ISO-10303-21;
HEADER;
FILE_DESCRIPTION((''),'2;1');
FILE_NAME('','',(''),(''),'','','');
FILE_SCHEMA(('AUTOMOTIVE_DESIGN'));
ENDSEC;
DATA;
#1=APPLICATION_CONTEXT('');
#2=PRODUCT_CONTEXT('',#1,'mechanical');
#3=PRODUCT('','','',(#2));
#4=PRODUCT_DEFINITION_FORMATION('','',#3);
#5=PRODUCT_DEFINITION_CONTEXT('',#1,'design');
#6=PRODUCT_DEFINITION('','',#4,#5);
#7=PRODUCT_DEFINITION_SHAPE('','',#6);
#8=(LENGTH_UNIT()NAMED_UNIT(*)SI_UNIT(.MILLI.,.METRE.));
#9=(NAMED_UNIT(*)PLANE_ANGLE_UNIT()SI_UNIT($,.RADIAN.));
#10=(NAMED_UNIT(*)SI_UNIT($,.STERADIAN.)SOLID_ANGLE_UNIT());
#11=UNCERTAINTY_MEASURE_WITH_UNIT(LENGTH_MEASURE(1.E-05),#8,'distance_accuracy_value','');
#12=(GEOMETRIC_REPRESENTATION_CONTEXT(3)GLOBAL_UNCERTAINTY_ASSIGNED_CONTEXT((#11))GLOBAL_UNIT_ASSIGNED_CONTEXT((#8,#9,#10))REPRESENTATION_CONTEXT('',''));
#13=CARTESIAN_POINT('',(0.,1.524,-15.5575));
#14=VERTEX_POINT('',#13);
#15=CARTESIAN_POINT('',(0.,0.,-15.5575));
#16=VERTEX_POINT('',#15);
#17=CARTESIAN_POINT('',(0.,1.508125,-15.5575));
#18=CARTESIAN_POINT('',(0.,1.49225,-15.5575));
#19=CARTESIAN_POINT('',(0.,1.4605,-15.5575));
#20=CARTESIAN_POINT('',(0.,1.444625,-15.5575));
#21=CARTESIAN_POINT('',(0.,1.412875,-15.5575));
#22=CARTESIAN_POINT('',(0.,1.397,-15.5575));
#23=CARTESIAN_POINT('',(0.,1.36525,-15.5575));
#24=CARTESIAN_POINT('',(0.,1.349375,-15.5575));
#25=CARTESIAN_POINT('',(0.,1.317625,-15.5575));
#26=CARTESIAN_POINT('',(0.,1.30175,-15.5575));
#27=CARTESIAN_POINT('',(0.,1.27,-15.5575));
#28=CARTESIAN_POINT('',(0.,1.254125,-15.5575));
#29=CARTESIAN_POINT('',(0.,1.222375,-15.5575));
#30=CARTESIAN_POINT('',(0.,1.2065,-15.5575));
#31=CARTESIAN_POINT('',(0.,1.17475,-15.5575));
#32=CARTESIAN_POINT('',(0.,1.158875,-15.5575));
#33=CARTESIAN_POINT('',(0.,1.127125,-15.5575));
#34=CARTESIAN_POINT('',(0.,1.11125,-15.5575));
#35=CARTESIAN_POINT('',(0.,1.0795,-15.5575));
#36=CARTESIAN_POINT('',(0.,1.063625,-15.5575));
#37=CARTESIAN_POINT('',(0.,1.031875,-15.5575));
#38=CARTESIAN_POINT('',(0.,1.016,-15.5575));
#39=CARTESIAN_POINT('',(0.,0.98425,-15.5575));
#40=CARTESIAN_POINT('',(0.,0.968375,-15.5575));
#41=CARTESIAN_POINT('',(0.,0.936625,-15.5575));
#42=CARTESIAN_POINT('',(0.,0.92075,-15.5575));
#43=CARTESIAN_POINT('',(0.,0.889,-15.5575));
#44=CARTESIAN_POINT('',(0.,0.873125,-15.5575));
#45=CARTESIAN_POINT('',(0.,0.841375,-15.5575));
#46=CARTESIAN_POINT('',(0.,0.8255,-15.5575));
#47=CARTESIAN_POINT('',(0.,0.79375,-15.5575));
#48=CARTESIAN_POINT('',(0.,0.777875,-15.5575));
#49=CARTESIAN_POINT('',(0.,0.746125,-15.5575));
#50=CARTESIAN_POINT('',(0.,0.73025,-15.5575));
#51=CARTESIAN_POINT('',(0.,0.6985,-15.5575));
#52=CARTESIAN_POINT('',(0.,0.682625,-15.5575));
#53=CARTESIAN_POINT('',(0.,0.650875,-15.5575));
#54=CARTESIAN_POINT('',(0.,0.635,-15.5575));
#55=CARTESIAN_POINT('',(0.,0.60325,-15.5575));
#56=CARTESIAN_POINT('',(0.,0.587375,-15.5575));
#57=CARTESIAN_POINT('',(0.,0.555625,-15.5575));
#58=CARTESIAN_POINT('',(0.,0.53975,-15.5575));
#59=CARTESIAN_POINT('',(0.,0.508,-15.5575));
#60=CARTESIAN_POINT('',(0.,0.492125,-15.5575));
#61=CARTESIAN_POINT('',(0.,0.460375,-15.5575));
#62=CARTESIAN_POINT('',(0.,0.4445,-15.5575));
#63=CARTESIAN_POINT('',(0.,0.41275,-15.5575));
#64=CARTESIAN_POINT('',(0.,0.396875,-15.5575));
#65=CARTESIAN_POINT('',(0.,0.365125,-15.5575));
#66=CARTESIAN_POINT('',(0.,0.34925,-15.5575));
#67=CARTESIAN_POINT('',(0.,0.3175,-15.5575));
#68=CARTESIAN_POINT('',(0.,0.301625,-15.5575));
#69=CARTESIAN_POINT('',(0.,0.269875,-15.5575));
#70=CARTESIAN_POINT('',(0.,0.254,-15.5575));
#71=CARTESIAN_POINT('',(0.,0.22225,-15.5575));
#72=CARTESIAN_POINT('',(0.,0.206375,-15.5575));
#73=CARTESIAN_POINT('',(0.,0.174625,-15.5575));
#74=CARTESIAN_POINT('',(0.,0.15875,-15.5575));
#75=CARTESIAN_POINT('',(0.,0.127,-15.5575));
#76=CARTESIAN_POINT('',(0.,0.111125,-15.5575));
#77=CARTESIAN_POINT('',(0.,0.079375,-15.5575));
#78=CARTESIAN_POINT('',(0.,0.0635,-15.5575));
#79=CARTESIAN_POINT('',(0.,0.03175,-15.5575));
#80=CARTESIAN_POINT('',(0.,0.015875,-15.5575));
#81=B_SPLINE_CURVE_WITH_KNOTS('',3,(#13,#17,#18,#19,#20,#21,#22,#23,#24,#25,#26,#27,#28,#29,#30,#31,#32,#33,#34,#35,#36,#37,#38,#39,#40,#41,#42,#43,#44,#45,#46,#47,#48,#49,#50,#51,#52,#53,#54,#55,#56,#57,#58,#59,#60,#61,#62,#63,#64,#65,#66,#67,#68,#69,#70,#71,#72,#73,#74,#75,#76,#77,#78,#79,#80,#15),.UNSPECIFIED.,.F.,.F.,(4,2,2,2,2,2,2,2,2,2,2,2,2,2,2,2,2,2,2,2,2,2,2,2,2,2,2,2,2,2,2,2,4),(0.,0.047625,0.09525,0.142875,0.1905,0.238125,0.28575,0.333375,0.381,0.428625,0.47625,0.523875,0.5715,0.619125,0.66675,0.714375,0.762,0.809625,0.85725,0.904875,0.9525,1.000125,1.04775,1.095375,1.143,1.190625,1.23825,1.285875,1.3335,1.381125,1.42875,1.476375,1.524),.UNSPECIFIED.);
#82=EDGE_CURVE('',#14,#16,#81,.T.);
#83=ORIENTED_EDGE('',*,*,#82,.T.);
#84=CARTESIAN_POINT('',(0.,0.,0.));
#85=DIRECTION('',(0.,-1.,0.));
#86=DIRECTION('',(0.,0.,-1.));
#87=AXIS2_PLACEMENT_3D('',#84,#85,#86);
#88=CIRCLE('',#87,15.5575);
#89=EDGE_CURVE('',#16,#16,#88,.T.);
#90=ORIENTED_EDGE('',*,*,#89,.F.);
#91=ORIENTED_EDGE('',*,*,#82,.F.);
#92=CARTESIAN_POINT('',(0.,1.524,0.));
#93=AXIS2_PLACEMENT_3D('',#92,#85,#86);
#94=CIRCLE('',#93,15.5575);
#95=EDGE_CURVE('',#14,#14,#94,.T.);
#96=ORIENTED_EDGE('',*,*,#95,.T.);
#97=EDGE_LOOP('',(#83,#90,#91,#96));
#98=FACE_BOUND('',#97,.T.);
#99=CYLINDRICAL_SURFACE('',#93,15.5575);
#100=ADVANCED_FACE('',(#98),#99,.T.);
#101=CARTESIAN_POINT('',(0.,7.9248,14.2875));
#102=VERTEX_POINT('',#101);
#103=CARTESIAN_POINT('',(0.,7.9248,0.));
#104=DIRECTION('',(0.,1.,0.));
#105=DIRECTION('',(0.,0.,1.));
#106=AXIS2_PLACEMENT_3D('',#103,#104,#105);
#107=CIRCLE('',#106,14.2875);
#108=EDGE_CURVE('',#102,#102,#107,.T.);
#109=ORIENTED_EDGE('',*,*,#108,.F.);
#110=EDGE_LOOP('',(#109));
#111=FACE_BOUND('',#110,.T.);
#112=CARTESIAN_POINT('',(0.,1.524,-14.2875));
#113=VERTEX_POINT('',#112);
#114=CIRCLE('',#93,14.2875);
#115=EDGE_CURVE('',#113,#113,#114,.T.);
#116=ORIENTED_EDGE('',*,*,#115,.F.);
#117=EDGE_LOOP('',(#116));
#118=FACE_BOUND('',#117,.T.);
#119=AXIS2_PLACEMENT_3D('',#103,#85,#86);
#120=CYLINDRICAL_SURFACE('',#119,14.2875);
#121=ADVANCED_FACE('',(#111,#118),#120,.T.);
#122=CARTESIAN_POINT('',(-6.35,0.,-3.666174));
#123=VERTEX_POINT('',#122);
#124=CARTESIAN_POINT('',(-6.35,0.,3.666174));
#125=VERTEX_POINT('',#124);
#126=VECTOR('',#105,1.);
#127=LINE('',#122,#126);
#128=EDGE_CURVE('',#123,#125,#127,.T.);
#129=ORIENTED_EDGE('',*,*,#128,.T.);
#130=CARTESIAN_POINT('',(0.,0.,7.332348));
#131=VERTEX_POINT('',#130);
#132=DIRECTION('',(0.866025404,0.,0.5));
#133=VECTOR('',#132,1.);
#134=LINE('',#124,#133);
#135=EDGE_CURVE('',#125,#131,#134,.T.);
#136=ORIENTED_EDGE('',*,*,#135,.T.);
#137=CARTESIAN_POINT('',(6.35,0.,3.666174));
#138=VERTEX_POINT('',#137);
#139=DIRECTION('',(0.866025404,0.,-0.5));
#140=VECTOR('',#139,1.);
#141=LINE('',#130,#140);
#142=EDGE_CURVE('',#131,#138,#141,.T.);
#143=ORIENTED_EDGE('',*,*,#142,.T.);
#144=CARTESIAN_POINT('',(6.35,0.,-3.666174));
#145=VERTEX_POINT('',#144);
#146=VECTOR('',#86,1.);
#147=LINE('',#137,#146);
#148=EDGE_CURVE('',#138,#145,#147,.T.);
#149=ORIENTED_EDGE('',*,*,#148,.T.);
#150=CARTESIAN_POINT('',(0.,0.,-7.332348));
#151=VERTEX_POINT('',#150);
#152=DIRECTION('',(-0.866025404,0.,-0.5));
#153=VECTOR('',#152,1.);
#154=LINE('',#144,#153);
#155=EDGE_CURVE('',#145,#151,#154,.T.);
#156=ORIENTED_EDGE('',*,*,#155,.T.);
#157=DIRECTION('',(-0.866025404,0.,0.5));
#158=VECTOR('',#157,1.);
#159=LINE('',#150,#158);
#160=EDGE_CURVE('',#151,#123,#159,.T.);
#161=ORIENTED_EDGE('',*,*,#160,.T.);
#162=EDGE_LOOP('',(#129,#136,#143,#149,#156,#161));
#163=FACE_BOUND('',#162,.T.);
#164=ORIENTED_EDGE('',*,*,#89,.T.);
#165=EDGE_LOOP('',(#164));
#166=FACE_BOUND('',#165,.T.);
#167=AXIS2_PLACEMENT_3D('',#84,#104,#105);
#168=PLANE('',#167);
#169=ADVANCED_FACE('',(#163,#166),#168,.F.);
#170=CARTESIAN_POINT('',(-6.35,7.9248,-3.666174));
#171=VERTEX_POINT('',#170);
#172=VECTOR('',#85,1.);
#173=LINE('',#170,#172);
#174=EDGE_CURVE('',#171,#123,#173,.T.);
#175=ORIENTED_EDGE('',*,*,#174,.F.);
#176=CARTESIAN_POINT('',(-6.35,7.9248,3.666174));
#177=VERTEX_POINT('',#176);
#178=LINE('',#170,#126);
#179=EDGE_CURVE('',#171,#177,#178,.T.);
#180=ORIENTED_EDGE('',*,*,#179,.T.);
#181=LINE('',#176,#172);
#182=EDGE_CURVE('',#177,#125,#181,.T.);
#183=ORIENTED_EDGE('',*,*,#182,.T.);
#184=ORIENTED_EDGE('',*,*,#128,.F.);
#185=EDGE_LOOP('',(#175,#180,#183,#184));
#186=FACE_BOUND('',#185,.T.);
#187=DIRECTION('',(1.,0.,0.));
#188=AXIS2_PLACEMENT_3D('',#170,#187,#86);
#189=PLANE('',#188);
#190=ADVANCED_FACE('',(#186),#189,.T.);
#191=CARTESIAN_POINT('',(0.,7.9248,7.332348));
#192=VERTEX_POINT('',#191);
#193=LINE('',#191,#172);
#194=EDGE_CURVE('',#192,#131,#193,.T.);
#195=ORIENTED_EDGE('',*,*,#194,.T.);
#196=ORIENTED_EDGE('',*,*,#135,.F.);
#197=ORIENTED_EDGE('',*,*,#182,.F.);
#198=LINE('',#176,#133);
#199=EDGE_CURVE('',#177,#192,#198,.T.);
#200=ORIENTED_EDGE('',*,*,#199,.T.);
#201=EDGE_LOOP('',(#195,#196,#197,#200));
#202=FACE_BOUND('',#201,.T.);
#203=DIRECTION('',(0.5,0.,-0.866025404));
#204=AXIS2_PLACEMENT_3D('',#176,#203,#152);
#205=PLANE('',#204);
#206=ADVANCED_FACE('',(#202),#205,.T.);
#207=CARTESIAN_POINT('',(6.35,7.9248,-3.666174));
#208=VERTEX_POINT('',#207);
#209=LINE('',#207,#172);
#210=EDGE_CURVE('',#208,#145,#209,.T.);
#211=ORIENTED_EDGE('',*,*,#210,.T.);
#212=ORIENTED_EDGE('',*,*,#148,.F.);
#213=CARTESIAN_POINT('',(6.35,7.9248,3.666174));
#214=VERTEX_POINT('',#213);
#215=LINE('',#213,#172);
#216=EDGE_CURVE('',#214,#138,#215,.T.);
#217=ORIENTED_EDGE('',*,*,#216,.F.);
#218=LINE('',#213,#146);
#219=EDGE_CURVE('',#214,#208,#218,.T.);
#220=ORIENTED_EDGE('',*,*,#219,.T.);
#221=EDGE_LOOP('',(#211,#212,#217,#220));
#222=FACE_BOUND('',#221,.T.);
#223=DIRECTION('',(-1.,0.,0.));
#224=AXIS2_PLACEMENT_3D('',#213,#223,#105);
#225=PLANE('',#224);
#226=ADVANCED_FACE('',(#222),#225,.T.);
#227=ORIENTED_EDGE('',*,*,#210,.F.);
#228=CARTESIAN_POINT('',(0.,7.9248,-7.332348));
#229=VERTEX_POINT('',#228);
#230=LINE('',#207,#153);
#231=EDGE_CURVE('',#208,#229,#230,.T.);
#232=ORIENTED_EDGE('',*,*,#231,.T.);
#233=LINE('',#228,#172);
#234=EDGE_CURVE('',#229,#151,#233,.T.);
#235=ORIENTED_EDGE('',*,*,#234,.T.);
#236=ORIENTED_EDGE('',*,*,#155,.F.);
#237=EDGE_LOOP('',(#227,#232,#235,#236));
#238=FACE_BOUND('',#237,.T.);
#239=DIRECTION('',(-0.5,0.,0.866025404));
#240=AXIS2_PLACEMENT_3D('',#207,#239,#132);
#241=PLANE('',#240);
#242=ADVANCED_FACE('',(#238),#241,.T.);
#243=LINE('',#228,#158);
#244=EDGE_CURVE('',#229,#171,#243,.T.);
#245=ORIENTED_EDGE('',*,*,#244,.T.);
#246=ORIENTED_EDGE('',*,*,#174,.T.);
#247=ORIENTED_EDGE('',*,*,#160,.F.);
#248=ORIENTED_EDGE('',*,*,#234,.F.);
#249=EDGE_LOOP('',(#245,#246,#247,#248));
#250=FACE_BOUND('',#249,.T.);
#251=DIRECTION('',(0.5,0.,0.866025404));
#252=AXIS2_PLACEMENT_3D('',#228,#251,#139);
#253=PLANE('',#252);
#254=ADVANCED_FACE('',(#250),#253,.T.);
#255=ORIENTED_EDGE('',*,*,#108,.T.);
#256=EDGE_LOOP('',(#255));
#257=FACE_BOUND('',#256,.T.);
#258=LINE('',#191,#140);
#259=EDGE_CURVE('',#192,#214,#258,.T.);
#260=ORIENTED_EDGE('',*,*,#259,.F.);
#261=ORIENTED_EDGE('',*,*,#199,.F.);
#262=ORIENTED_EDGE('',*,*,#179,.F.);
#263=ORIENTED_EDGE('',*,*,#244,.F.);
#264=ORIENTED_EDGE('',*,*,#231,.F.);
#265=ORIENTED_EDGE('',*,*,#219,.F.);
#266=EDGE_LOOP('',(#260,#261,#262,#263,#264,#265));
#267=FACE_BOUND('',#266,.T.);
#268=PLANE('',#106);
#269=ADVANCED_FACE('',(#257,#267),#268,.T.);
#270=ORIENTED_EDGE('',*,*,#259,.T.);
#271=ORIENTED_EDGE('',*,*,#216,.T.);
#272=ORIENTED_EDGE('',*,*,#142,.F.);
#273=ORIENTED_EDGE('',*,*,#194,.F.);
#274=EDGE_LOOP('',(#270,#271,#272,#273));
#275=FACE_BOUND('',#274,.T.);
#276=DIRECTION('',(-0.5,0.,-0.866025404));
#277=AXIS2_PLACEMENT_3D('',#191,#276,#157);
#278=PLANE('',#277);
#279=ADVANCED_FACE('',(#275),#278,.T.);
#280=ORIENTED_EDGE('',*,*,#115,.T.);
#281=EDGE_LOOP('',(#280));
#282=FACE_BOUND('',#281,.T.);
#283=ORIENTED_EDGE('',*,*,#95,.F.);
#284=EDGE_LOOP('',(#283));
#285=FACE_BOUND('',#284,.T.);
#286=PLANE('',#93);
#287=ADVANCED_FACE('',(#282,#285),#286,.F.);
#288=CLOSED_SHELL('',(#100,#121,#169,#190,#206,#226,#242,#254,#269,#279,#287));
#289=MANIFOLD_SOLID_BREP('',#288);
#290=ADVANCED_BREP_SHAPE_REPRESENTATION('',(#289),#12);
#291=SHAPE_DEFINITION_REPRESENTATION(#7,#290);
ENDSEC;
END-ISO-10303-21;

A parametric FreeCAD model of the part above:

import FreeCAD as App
import Part
import Sketcher
from FreeCAD import Vector
Q = App.Units.Quantity

doc = App.newDocument("Part")
params = doc.addObject("Spreadsheet::Sheet", "Params")
for row, (alias, value) in enumerate([
    ("sketch1_diameter", "1.125 in"),
    ("pad1_length", "0.312 in"),
    ("sketch2_diameter", "1.225 in"),
    ("sketch2_diameter2", "1.125 in"),
    ("pad2_length", "0.06 in"),
], start=1):
    params.set(f"A{row}", alias)
    params.set(f"B{row}", "=" + value)
    params.setAlias(f"B{row}", alias)

body = doc.addObject("PartDesign::Body", "Body")

sketch1 = body.newObject("Sketcher::SketchObject", "Sketch")
sketch1.AttachmentSupport = (doc.getObject("XZ_Plane"), [""])
sketch1.MapMode = "FlatFace"
sketch1.addGeometry(Part.Circle(Vector(0, 0, 0), Vector(0, 0, 1), 14), False)
sketch1.addGeometry(Part.LineSegment(Vector(6, -4, 0), Vector(6, 4, 0)), False)
sketch1.addGeometry(Part.LineSegment(Vector(6, 4, 0), Vector(0, 7, 0)), False)
sketch1.addGeometry(Part.LineSegment(Vector(0, 7, 0), Vector(-6, 4, 0)), False)
sketch1.addGeometry(Part.LineSegment(Vector(-6, 4, 0), Vector(-6, -4, 0)), False)
sketch1.addGeometry(Part.LineSegment(Vector(-6, -4, 0), Vector(0, -7, 0)), False)
sketch1.addGeometry(Part.LineSegment(Vector(0, -7, 0), Vector(6, -4, 0)), False)
sketch1.addConstraint(Sketcher.Constraint("Coincident", 1, 2, 2, 1))
sketch1.addConstraint(Sketcher.Constraint("Coincident", 2, 2, 3, 1))
sketch1.addConstraint(Sketcher.Constraint("Coincident", 3, 2, 4, 1))
sketch1.addConstraint(Sketcher.Constraint("Coincident", 4, 2, 5, 1))
sketch1.addConstraint(Sketcher.Constraint("Coincident", 5, 2, 6, 1))
sketch1.addConstraint(Sketcher.Constraint("Coincident", 6, 2, 1, 1))
sketch1.addConstraint(Sketcher.Constraint("Vertical", 1))
sketch1.addConstraint(Sketcher.Constraint("Vertical", 4))
sketch1.addConstraint(Sketcher.Constraint("Coincident", 0, 3, -1, 1))
sketch1.addConstraint(Sketcher.Constraint("Symmetric", 1, 2, 4, 2, -1, 1))
sketch1.addConstraint(Sketcher.Constraint("Symmetric", 2, 2, 5, 2, -1, 1))
sketch1.addConstraint(Sketcher.Constraint("PointOnObject", 2, 2, -2))
sketch1.addConstraint(Sketcher.Constraint("Parallel", 3, 6))
sketch1.addConstraint(Sketcher.Constraint("Horizontal", 1, 2, 3, 2))
sketch1.addConstraint(Sketcher.Constraint("Diameter", 0, Q("1.125 in")))
sketch1.addConstraint(Sketcher.Constraint("Angle", 2, Q("150 deg")))
sketch1.addConstraint(Sketcher.Constraint("DistanceX", 3, 2, 1, 2, Q("0.5 in")))
sketch1.addConstraint(Sketcher.Constraint("DistanceY", 1, 1, 1, 2, Q("7.332348 mm")))
sketch1.setExpression("Constraints[14]", "Params.sketch1_diameter")
pad1 = body.newObject("PartDesign::Pad", "Pad")
pad1.Profile = sketch1
pad1.setExpression("Length", "Params.pad1_length")
pad1.Reversed = True

sketch2 = body.newObject("Sketcher::SketchObject", "Sketch001")
sketch2.AttachmentSupport = (doc.getObject("XZ_Plane"), [""])
sketch2.MapMode = "FlatFace"
sketch2.addGeometry(Part.Circle(Vector(0, 0, 0), Vector(0, 0, 1), 16), False)
sketch2.addGeometry(Part.Circle(Vector(0, 0, 0), Vector(0, 0, 1), 14), False)
sketch2.addConstraint(Sketcher.Constraint("Coincident", 0, 3, -1, 1))
sketch2.addConstraint(Sketcher.Constraint("Coincident", 1, 3, -1, 1))
sketch2.addConstraint(Sketcher.Constraint("Diameter", 0, Q("1.225 in")))
sketch2.addConstraint(Sketcher.Constraint("Diameter", 1, Q("1.125 in")))
sketch2.setExpression("Constraints[2]", "Params.sketch2_diameter")
sketch2.setExpression("Constraints[3]", "Params.sketch2_diameter2")
pad2 = body.newObject("PartDesign::Pad", "Pad001")
pad2.Profile = sketch2
pad2.setExpression("Length", "Params.pad2_length")
pad2.Reversed = True

doc.recompute()
